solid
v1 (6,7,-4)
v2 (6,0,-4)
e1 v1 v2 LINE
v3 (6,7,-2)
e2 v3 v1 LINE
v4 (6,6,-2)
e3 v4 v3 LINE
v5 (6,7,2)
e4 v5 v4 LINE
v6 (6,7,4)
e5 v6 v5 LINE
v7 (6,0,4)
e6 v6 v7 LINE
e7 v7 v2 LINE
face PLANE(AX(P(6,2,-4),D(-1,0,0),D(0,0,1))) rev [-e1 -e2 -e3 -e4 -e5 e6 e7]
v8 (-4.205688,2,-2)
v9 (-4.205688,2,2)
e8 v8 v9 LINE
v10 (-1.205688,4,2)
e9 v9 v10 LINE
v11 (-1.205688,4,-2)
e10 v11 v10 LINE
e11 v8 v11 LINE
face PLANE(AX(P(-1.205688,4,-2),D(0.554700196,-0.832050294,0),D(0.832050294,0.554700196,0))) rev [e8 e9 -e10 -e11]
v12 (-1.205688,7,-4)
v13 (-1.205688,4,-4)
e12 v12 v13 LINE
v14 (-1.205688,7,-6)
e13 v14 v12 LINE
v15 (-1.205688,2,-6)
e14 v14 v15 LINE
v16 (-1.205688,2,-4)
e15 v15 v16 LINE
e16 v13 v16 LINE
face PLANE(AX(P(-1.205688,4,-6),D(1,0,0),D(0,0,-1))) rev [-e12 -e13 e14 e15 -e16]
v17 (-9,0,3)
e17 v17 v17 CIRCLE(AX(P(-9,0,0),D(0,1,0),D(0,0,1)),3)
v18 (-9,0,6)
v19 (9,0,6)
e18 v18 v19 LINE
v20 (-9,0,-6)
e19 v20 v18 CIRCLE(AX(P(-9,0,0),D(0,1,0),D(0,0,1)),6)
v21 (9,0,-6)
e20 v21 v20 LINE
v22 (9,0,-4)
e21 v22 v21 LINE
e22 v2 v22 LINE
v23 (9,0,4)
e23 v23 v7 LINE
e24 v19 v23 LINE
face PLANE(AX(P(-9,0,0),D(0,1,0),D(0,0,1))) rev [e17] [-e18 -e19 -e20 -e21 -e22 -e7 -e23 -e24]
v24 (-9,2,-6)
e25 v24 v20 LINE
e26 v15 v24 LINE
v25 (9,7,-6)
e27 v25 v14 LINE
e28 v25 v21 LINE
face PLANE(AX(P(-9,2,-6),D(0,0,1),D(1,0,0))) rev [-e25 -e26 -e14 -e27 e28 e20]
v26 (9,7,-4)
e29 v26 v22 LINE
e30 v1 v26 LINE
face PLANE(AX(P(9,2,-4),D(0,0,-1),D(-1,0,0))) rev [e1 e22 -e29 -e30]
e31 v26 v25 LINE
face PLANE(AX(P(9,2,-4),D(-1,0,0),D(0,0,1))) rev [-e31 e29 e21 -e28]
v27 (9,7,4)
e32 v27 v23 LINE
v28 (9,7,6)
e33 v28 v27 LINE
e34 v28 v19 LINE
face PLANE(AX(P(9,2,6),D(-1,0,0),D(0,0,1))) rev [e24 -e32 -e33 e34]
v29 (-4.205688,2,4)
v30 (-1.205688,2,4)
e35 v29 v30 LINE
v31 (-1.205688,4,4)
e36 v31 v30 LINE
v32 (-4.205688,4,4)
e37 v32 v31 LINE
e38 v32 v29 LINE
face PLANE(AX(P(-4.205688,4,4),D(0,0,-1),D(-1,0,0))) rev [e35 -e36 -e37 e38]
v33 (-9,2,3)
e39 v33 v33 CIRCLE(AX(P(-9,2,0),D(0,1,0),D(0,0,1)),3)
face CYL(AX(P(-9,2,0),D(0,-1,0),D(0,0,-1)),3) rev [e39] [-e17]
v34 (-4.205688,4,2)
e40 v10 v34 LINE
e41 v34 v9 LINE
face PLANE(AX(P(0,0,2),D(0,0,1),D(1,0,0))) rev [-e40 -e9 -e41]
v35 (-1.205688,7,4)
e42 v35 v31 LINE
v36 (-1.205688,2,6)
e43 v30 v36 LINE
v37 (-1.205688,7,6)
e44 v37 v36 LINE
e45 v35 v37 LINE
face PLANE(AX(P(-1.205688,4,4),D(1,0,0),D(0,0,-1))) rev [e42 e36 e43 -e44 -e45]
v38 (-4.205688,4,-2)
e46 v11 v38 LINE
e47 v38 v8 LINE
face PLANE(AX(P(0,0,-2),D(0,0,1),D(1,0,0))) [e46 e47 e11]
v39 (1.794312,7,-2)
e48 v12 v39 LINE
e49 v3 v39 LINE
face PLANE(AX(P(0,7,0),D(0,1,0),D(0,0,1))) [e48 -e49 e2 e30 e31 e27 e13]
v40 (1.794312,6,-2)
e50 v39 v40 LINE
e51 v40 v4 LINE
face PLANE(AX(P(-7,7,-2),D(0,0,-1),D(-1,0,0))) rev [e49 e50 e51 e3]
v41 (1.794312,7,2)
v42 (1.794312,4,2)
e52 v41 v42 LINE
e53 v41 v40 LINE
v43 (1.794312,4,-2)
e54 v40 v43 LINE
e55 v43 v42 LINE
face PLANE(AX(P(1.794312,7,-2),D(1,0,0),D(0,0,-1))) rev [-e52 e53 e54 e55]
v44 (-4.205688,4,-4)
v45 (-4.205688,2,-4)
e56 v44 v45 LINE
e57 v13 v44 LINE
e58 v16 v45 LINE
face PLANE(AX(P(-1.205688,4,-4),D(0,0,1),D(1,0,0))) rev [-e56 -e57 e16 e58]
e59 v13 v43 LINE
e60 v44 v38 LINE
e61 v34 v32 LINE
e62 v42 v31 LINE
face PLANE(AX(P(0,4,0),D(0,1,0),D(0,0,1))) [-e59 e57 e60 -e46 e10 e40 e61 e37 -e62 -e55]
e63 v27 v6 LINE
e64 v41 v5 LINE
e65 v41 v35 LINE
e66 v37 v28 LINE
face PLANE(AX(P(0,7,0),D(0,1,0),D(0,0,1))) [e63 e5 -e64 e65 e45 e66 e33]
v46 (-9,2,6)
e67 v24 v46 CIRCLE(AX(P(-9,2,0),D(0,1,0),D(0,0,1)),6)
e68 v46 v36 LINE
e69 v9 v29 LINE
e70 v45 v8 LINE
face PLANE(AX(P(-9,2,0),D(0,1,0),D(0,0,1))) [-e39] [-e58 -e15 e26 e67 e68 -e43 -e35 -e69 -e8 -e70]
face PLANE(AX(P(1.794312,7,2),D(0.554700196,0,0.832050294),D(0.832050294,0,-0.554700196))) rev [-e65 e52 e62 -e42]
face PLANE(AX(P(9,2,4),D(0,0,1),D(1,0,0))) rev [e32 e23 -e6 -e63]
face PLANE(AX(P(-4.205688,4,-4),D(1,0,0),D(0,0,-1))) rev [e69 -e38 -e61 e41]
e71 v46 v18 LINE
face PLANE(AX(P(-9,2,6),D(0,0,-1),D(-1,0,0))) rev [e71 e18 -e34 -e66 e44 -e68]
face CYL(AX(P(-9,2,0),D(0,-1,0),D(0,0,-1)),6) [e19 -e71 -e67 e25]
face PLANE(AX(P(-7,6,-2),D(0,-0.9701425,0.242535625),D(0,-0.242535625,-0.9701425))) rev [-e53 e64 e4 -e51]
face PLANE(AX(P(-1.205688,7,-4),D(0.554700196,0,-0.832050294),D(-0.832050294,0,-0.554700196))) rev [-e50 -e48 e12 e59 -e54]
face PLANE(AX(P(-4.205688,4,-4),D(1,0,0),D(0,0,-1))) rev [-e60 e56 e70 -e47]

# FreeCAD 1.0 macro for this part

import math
import FreeCAD as App
import Part
import Sketcher

V = App.Vector


def add_polygon(sketch, points):
    """Adds a closed chain of lines whose ends are joined by coincident constraints."""
    first, n = sketch.GeometryCount, len(points)
    for a, b in zip(points, points[1:] + points[:1]):
        sketch.addGeometry(Part.LineSegment(App.Vector(*a, 0), App.Vector(*b, 0)), False)
    for i in range(n):
        sketch.addConstraint(Sketcher.Constraint("Coincident", first + i, 2, first + (i + 1) % n, 1))

doc = App.newDocument("Part")
body = doc.addObject("PartDesign::Body", "Body")

sketch1 = body.newObject("Sketcher::SketchObject", "Sketch")
sketch1.AttachmentSupport = (doc.getObject("XZ_Plane"), [""])
sketch1.MapMode = "FlatFace"
sketch1.addGeometry([
    Part.LineSegment(V(9, -4, 0), V(9, -6, 0)),
    Part.LineSegment(V(9, -6, 0), V(-9, -6, 0)),
    Part.ArcOfCircle(Part.Circle(V(-9, 0, 0), V(0, 0, 1), 6), math.radians(90), math.radians(270)),
    Part.LineSegment(V(-9, 6, 0), V(9, 6, 0)),
    Part.LineSegment(V(9, 6, 0), V(9, 4, 0)),
    Part.LineSegment(V(9, 4, 0), V(6, 4, 0)),
    Part.LineSegment(V(6, 4, 0), V(6, -4, 0)),
    Part.LineSegment(V(6, -4, 0), V(9, -4, 0)),
    Part.Circle(V(-9, 0, 0), V(0, 0, 1), 3),
], False)
sketch1.addConstraint([
    Sketcher.Constraint("Coincident", 0, 2, 1, 1),
    Sketcher.Constraint("Tangent", 1, 2, 2, 2),
    Sketcher.Constraint("Tangent", 2, 1, 3, 1),
    Sketcher.Constraint("Coincident", 3, 2, 4, 1),
    Sketcher.Constraint("Coincident", 4, 2, 5, 1),
    Sketcher.Constraint("Coincident", 5, 2, 6, 1),
    Sketcher.Constraint("Coincident", 6, 2, 7, 1),
    Sketcher.Constraint("Coincident", 7, 2, 0, 1),
    Sketcher.Constraint("Vertical", 0),
    Sketcher.Constraint("Horizontal", 1),
    Sketcher.Constraint("Horizontal", 3),
    Sketcher.Constraint("Vertical", 4),
    Sketcher.Constraint("Horizontal", 5),
    Sketcher.Constraint("Vertical", 6),
    Sketcher.Constraint("Horizontal", 7),
    Sketcher.Constraint("Coincident", 8, 3, 2, 3),
    Sketcher.Constraint("Symmetric", 0, 2, 2, 1, -1, 1),
    Sketcher.Constraint("Symmetric", 4, 2, 7, 2, -1),
    Sketcher.Constraint("Diameter", 8, 6.0),
    Sketcher.Constraint("Radius", 2, 6.0),
    Sketcher.Constraint("DistanceX", 1, 2, 1, 1, 18.0),
    Sketcher.Constraint("DistanceX", 5, 2, 5, 1, 3.0),
    Sketcher.Constraint("DistanceY", 0, 2, 0, 1, 2.0),
])
pad1 = body.newObject("PartDesign::Pad", "Pad")
pad1.Profile = sketch1
pad1.Length = 2
pad1.Reversed = True

sketch2 = body.newObject("Sketcher::SketchObject", "Sketch001")
sketch2.AttachmentSupport = (doc.getObject("XZ_Plane"), [""])
sketch2.MapMode = "FlatFace"
sketch2.AttachmentOffset = App.Placement(V(0, 0, -2), App.Rotation())
add_polygon(sketch2, [(9, -6), (-1.2, -6), (-1.2, -4), (-4.2, -4), (-4.2, 4), (-1.2, 4), (-1.2, 6), (9, 6), (9, 4), (6, 4), (6, -4), (9, -4)])
sketch2.addConstraint([
    Sketcher.Constraint("Horizontal", 0),
    Sketcher.Constraint("Vertical", 1),
    Sketcher.Constraint("Horizontal", 2),
    Sketcher.Constraint("Vertical", 3),
    Sketcher.Constraint("Horizontal", 4),
    Sketcher.Constraint("Vertical", 5),
    Sketcher.Constraint("Horizontal", 6),
    Sketcher.Constraint("Vertical", 7),
    Sketcher.Constraint("Horizontal", 8),
    Sketcher.Constraint("Vertical", 9),
    Sketcher.Constraint("Horizontal", 10),
    Sketcher.Constraint("Vertical", 11),
    Sketcher.Constraint("Symmetric", 1, 2, 4, 2, -1),
    Sketcher.Constraint("Symmetric", 7, 2, 10, 2, -1),
    Sketcher.Constraint("Horizontal", 4, 2, 7, 2),
    Sketcher.Constraint("Equal", 4, 8),
    Sketcher.Constraint("Equal", 1, 5),
    Sketcher.Constraint("DistanceX", 2, 2, 2, 1, 3.0),
    Sketcher.Constraint("DistanceY", 1, 1, 1, 2, 2.0),
    Sketcher.Constraint("DistanceY", 3, 1, 3, 2, 8.0),
    Sketcher.Constraint("DistanceX", -1, 1, 6, 2, 9.0),
    Sketcher.Constraint("DistanceX", 0, 2, 0, 1, 10.205688),
])
pad2 = body.newObject("PartDesign::Pad", "Pad001")
pad2.Profile = sketch2
pad2.Length = 2
pad2.Reversed = True

sketch3 = body.newObject("Sketcher::SketchObject", "Sketch002")
sketch3.AttachmentSupport = (doc.getObject("XY_Plane"), [""])
sketch3.MapMode = "FlatFace"
add_polygon(sketch3, [(-4.2, 2), (-1.2, 4), (-4.2, 4)])
sketch3.addConstraint([
    Sketcher.Constraint("Horizontal", 1),
    Sketcher.Constraint("Vertical", 2),
    Sketcher.Constraint("DistanceX", 1, 2, 1, 1, 3.0),
    Sketcher.Constraint("DistanceY", 2, 2, 2, 1, 2.0),
    Sketcher.Constraint("DistanceY", -1, 1, 0, 2, 4.0),
    Sketcher.Constraint("DistanceX", 0, 2, -1, 1, 1.205688),
])
pocket1 = body.newObject("PartDesign::Pocket", "Pocket")
pocket1.Profile = sketch3
pocket1.Length = 4
pocket1.Midplane = True

sketch4 = body.newObject("Sketcher::SketchObject", "Sketch003")
sketch4.AttachmentSupport = (doc.getObject("XZ_Plane"), [""])
sketch4.MapMode = "FlatFace"
sketch4.AttachmentOffset = App.Placement(V(0, 0, -4), App.Rotation())
add_polygon(sketch4, [(9, -6), (-1.2, -6), (-1.2, -4), (1.8, -2), (1.8, 2), (-1.2, 4), (-1.2, 6), (9, 6), (9, 4), (6, 4), (6, -4), (9, -4)])
sketch4.addConstraint([
    Sketcher.Constraint("Horizontal", 0),
    Sketcher.Constraint("Vertical", 1),
    Sketcher.Constraint("Vertical", 3),
    Sketcher.Constraint("Vertical", 5),
    Sketcher.Constraint("Horizontal", 6),
    Sketcher.Constraint("Vertical", 7),
    Sketcher.Constraint("Horizontal", 8),
    Sketcher.Constraint("Vertical", 9),
    Sketcher.Constraint("Horizontal", 10),
    Sketcher.Constraint("Vertical", 11),
    Sketcher.Constraint("Symmetric", 1, 2, 4, 2, -1),
    Sketcher.Constraint("Symmetric", 7, 2, 10, 2, -1),
    Sketcher.Constraint("Horizontal", 4, 2, 7, 2),
    Sketcher.Constraint("Equal", 1, 5),
    Sketcher.Constraint("Equal", 2, 4),
    Sketcher.Constraint("DistanceX", 8, 2, 8, 1, 3.0),
    Sketcher.Constraint("DistanceY", 1, 1, 1, 2, 2.0),
    Sketcher.Constraint("DistanceY", 3, 1, 3, 2, 4.0),
    Sketcher.Constraint("DistanceY", 9, 2, 9, 1, 8.0),
    Sketcher.Constraint("DistanceX", -1, 1, 6, 2, 9.0),
    Sketcher.Constraint("DistanceX", 1, 2, 2, 2, 3.0),
    Sketcher.Constraint("DistanceX", 0, 2, 0, 1, 10.205688),
])
pad3 = body.newObject("PartDesign::Pad", "Pad002")
pad3.Profile = sketch4
pad3.Length = 3
pad3.Reversed = True

sketch5 = body.newObject("Sketcher::SketchObject", "Sketch004")
sketch5.AttachmentSupport = (doc.getObject("YZ_Plane"), [""])
sketch5.MapMode = "FlatFace"
sketch5.AttachmentOffset = App.Placement(V(0, 0, 6), App.Rotation())
add_polygon(sketch5, [(6, -2), (7, -2), (7, 2)])
sketch5.addConstraint([
    Sketcher.Constraint("Horizontal", 0),
    Sketcher.Constraint("Vertical", 1),
    Sketcher.Constraint("DistanceX", 0, 1, 0, 2, 1.0),
    Sketcher.Constraint("DistanceY", 1, 1, 1, 2, 4.0),
    Sketcher.Constraint("DistanceX", -1, 1, 0, 2, 7.0),
    Sketcher.Constraint("DistanceY", 0, 2, -1, 1, 2.0),
])
pocket2 = body.newObject("PartDesign::Pocket", "Pocket001")
pocket2.Profile = sketch5
pocket2.Length = 13

doc.recompute()
